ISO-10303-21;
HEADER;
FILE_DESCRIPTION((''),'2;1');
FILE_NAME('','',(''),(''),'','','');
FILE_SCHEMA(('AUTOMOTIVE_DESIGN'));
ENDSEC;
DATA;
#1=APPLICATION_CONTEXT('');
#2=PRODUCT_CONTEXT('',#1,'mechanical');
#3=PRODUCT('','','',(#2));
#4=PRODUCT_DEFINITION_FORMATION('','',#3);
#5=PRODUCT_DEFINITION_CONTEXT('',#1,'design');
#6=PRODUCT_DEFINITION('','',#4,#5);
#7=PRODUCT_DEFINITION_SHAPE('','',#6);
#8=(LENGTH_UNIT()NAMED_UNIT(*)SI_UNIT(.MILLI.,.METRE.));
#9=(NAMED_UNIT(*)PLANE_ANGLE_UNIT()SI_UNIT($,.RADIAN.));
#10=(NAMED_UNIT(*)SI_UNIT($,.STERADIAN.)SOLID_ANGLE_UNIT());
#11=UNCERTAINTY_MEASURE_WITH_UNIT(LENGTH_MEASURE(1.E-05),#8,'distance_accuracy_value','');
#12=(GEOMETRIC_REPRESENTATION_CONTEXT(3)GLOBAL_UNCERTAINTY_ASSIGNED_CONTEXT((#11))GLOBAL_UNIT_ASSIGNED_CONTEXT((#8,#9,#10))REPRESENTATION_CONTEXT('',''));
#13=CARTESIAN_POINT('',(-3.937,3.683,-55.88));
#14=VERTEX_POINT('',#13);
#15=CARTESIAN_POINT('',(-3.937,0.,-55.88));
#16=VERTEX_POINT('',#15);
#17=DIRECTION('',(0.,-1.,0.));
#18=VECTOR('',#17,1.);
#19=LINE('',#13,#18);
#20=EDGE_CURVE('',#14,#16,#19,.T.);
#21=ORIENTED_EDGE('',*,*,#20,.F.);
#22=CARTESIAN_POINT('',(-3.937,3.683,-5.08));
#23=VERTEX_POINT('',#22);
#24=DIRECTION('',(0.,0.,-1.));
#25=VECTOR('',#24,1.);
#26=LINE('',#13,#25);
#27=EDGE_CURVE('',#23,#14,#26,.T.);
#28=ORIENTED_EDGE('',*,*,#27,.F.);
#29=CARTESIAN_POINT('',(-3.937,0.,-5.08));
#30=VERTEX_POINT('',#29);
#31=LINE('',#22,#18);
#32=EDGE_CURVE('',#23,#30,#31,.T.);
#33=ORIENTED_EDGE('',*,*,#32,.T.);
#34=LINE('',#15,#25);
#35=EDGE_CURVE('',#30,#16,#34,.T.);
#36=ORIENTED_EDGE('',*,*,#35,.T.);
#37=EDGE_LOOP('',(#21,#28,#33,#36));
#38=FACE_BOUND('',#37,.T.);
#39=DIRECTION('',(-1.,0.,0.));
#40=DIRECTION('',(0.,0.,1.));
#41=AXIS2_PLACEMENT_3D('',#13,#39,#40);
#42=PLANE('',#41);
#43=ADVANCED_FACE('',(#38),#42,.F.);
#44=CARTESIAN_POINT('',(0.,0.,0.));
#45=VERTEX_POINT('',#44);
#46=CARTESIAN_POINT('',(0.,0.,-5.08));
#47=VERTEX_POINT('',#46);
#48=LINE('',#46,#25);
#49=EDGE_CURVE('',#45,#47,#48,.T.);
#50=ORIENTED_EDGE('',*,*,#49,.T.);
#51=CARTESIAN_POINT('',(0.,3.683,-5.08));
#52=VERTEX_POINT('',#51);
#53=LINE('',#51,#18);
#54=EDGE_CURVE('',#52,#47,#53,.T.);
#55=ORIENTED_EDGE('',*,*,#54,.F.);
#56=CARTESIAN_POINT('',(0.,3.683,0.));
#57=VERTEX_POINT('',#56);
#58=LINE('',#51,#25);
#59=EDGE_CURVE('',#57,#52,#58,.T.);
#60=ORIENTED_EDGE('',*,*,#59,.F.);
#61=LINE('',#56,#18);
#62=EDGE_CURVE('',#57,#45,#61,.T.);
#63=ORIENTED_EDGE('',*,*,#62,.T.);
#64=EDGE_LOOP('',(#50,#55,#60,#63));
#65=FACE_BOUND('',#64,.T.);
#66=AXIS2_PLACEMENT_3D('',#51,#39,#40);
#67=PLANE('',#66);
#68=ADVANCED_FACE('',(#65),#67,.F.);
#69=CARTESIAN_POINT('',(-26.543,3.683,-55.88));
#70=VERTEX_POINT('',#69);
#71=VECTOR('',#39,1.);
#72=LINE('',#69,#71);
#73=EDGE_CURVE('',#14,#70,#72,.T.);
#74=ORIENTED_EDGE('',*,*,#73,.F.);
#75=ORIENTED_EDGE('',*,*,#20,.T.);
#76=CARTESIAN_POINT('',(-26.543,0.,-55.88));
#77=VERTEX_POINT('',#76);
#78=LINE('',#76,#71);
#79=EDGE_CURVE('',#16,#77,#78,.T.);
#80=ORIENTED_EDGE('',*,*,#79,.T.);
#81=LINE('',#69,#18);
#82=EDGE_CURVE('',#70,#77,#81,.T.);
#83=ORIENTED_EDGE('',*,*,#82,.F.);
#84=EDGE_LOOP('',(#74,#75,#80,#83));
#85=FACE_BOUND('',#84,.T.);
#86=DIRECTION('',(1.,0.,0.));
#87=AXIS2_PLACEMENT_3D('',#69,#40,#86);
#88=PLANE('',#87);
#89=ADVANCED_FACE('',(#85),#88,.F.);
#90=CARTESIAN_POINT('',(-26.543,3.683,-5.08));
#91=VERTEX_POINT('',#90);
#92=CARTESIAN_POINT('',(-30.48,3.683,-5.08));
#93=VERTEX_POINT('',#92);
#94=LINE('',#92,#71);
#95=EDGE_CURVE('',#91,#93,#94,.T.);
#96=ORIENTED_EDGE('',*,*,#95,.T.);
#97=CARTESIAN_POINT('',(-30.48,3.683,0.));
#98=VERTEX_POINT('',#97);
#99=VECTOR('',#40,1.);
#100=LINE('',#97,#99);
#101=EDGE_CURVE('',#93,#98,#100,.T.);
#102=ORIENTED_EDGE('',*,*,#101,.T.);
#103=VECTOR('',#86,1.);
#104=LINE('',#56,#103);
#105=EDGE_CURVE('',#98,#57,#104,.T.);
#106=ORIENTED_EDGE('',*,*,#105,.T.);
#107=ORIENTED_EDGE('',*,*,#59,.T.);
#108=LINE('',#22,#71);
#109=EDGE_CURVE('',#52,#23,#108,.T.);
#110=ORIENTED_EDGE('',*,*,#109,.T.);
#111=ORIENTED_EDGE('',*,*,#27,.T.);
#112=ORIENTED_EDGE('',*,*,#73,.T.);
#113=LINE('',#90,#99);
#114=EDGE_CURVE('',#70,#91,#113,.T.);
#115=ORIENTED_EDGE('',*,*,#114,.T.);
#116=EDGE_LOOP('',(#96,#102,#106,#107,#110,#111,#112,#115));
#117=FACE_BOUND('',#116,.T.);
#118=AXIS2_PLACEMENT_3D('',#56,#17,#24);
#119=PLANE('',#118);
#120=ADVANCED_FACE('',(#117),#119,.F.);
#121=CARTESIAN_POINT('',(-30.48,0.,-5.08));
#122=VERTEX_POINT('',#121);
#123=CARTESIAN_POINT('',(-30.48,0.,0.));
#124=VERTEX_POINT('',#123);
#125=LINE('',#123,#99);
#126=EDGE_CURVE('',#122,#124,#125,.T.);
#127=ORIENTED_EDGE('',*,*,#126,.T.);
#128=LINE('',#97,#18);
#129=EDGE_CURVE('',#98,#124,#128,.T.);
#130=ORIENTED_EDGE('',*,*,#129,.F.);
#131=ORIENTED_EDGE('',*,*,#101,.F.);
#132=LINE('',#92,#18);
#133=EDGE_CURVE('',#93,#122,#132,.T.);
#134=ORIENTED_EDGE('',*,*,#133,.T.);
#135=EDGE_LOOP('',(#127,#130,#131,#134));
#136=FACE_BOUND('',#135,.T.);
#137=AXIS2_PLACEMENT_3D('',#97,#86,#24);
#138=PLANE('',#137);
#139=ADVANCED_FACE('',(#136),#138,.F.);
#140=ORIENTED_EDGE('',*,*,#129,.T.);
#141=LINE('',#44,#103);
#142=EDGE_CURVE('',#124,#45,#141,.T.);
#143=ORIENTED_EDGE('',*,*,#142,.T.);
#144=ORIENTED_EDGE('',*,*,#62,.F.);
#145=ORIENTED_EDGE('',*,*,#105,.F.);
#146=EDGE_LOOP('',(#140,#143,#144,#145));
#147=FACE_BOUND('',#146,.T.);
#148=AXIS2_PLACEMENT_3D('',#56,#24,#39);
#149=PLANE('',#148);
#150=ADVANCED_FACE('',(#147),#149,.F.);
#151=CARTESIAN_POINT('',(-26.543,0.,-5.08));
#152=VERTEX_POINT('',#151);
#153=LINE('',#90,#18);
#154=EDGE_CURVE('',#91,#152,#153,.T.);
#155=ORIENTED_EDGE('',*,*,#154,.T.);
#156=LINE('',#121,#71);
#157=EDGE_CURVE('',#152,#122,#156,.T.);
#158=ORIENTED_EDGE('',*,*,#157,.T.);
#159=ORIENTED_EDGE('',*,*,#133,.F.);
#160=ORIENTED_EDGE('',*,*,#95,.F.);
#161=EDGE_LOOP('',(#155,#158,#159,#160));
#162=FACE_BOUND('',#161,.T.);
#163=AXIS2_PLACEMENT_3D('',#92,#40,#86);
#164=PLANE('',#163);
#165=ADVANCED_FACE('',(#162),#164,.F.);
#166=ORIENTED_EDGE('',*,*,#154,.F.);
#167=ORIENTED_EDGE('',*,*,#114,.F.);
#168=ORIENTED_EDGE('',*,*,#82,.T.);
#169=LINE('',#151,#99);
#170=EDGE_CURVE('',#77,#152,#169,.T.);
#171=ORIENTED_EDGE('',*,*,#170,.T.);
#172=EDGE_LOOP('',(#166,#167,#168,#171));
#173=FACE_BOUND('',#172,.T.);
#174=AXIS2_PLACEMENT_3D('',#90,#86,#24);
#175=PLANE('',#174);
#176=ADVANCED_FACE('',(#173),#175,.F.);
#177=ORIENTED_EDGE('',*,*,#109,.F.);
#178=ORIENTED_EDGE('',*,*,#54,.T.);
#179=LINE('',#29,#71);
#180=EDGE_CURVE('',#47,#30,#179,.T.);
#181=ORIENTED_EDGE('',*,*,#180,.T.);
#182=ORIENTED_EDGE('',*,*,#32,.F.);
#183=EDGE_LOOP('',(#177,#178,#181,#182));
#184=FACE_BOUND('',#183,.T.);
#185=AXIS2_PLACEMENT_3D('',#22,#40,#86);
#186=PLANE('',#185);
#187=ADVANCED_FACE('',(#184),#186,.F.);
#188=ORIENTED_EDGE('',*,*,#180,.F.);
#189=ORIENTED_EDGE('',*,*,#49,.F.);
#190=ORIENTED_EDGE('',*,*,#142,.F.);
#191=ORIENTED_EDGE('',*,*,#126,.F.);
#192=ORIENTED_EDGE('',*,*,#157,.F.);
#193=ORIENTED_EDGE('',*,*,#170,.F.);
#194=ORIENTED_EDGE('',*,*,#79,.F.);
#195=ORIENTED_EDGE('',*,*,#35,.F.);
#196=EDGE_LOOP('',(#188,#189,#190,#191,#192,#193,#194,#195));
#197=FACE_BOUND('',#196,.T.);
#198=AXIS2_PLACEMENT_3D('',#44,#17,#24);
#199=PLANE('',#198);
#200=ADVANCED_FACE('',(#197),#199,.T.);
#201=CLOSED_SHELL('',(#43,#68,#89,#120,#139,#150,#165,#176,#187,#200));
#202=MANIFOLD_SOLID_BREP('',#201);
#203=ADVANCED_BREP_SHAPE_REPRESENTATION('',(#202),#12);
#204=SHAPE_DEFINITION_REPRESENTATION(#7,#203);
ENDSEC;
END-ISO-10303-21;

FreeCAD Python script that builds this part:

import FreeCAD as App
import Part
import Sketcher
Q = App.Units.Quantity

doc = App.newDocument("Part")
params = doc.addObject("Spreadsheet::Sheet", "Params")
for row, (alias, value) in enumerate([
    ("sketch1_height", "2 in"),
    ("sketch1_width", "1.2 in"),
    ("sketch1_height2", "0.2 in"),
    ("sketch1_width2", "0.89 in"),
    ("pad1_length", "0.145 in"),
], start=1):
    params.set(f"A{row}", alias)
    params.set(f"B{row}", "=" + value)
    params.setAlias(f"B{row}", alias)

body = doc.addObject("PartDesign::Body", "Body")

sketch1 = body.newObject("Sketcher::SketchObject", "Sketch")
sketch1.AttachmentSupport = (doc.getObject("XZ_Plane"), [""])
sketch1.MapMode = "FlatFace"
sketch1.addGeometry([
    Part.LineSegment(App.Vector(-30.5, 0, 0), App.Vector(0, 0, 0)),
    Part.LineSegment(App.Vector(0, 0, 0), App.Vector(0, -5.1, 0)),
    Part.LineSegment(App.Vector(0, -5.1, 0), App.Vector(-3.9, -5.1, 0)),
    Part.LineSegment(App.Vector(-3.9, -5.1, 0), App.Vector(-3.9, -55.9, 0)),
    Part.LineSegment(App.Vector(-3.9, -55.9, 0), App.Vector(-26.5, -55.9, 0)),
    Part.LineSegment(App.Vector(-26.5, -55.9, 0), App.Vector(-26.5, -5.1, 0)),
    Part.LineSegment(App.Vector(-26.5, -5.1, 0), App.Vector(-30.5, -5.1, 0)),
    Part.LineSegment(App.Vector(-30.5, -5.1, 0), App.Vector(-30.5, 0, 0)),
], False)
sketch1.addConstraint([
    Sketcher.Constraint("Coincident", 0, 2, 1, 1),
    Sketcher.Constraint("Coincident", 1, 2, 2, 1),
    Sketcher.Constraint("Coincident", 2, 2, 3, 1),
    Sketcher.Constraint("Coincident", 3, 2, 4, 1),
    Sketcher.Constraint("Coincident", 4, 2, 5, 1),
    Sketcher.Constraint("Coincident", 5, 2, 6, 1),
    Sketcher.Constraint("Coincident", 6, 2, 7, 1),
    Sketcher.Constraint("Coincident", 7, 2, 0, 1),
    Sketcher.Constraint("Horizontal", 0),
    Sketcher.Constraint("Vertical", 1),
    Sketcher.Constraint("Horizontal", 2),
    Sketcher.Constraint("Vertical", 3),
    Sketcher.Constraint("Horizontal", 4),
    Sketcher.Constraint("Vertical", 5),
    Sketcher.Constraint("Horizontal", 6),
    Sketcher.Constraint("Vertical", 7),
    Sketcher.Constraint("Coincident", 0, 2, -1, 1),
    Sketcher.Constraint("Horizontal", 2, 2, 5, 2),
    Sketcher.Constraint("Equal", 2, 6),
    Sketcher.Constraint("DistanceY", 3, 2, 3, 1, Q("2 in")),
    Sketcher.Constraint("DistanceX", 0, 1, 0, 2, Q("1.2 in")),
    Sketcher.Constraint("DistanceY", 1, 2, 1, 1, Q("0.2 in")),
    Sketcher.Constraint("DistanceX", 4, 2, 4, 1, Q("0.89 in")),
])
sketch1.setExpression("Constraints[19]", "Params.sketch1_height")
sketch1.setExpression("Constraints[20]", "Params.sketch1_width")
sketch1.setExpression("Constraints[21]", "Params.sketch1_height2")
sketch1.setExpression("Constraints[22]", "Params.sketch1_width2")
pad1 = body.newObject("PartDesign::Pad", "Pad")
pad1.Profile = sketch1
pad1.setExpression("Length", "Params.pad1_length")
pad1.Reversed = True

doc.recompute()
